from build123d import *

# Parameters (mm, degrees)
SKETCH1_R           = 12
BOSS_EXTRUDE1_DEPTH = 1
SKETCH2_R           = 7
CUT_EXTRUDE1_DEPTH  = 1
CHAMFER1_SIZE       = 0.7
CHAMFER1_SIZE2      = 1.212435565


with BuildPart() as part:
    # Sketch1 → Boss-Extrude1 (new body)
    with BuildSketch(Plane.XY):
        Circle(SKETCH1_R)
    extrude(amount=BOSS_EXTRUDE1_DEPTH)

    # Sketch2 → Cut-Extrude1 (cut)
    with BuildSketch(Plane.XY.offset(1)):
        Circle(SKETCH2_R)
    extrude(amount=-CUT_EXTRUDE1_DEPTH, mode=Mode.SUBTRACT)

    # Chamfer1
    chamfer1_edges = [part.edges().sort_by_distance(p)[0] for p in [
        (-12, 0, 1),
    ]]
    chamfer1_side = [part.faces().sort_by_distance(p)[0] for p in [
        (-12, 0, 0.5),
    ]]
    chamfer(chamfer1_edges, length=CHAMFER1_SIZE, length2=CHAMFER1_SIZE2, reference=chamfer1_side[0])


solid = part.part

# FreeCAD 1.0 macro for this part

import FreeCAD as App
import Part
import Sketcher
from FreeCAD import Vector


def edges_at(feature, points):
    """Names of the edges that pass closest to the given points."""
    edges = feature.Shape.Edges
    near = lambda p: min(range(len(edges)), key=lambda i: edges[i].distToShape(Part.Vertex(*p))[0])
    return sorted({f"Edge{near(p) + 1}" for p in points})

doc = App.newDocument("Part")
body = doc.addObject("PartDesign::Body", "Body")

# Sketch on XY plane
sketch1 = body.newObject("Sketcher::SketchObject", "Sketch")
sketch1.AttachmentSupport = (doc.getObject("XY_Plane"), [""])
sketch1.MapMode = "FlatFace"
sketch1.addGeometry(Part.Circle(Vector(0, 0, 0), Vector(0, 0, 1), 12), False)
sketch1.addConstraint(Sketcher.Constraint("Coincident", 0, 3, -1, 1))
sketch1.addConstraint(Sketcher.Constraint("Diameter", 0, 24.0))
pad1 = body.newObject("PartDesign::Pad", "Pad")
pad1.Profile = sketch1
pad1.Length = 1

# Sketch on XY plane
sketch2 = body.newObject("Sketcher::SketchObject", "Sketch001")
sketch2.AttachmentSupport = (doc.getObject("XY_Plane"), [""])
sketch2.MapMode = "FlatFace"
sketch2.AttachmentOffset = App.Placement(Vector(0, 0, 1), App.Rotation())
sketch2.addGeometry(Part.Circle(Vector(0, 0, 0), Vector(0, 0, 1), 7), False)
sketch2.addConstraint(Sketcher.Constraint("Coincident", 0, 3, -1, 1))
sketch2.addConstraint(Sketcher.Constraint("Diameter", 0, 14.0))
pocket1 = body.newObject("PartDesign::Pocket", "Pocket")
pocket1.Profile = sketch2
pocket1.Length = 1
doc.recompute()

chamfer = body.newObject("PartDesign::Chamfer", "Chamfer")
chamfer.Base = (pocket1, edges_at(pocket1, [(-12, 0, 1)]))
chamfer.ChamferType = "Two distances"
chamfer.Size = 0.7
chamfer.Size2 = 1.212436

doc.recompute()
